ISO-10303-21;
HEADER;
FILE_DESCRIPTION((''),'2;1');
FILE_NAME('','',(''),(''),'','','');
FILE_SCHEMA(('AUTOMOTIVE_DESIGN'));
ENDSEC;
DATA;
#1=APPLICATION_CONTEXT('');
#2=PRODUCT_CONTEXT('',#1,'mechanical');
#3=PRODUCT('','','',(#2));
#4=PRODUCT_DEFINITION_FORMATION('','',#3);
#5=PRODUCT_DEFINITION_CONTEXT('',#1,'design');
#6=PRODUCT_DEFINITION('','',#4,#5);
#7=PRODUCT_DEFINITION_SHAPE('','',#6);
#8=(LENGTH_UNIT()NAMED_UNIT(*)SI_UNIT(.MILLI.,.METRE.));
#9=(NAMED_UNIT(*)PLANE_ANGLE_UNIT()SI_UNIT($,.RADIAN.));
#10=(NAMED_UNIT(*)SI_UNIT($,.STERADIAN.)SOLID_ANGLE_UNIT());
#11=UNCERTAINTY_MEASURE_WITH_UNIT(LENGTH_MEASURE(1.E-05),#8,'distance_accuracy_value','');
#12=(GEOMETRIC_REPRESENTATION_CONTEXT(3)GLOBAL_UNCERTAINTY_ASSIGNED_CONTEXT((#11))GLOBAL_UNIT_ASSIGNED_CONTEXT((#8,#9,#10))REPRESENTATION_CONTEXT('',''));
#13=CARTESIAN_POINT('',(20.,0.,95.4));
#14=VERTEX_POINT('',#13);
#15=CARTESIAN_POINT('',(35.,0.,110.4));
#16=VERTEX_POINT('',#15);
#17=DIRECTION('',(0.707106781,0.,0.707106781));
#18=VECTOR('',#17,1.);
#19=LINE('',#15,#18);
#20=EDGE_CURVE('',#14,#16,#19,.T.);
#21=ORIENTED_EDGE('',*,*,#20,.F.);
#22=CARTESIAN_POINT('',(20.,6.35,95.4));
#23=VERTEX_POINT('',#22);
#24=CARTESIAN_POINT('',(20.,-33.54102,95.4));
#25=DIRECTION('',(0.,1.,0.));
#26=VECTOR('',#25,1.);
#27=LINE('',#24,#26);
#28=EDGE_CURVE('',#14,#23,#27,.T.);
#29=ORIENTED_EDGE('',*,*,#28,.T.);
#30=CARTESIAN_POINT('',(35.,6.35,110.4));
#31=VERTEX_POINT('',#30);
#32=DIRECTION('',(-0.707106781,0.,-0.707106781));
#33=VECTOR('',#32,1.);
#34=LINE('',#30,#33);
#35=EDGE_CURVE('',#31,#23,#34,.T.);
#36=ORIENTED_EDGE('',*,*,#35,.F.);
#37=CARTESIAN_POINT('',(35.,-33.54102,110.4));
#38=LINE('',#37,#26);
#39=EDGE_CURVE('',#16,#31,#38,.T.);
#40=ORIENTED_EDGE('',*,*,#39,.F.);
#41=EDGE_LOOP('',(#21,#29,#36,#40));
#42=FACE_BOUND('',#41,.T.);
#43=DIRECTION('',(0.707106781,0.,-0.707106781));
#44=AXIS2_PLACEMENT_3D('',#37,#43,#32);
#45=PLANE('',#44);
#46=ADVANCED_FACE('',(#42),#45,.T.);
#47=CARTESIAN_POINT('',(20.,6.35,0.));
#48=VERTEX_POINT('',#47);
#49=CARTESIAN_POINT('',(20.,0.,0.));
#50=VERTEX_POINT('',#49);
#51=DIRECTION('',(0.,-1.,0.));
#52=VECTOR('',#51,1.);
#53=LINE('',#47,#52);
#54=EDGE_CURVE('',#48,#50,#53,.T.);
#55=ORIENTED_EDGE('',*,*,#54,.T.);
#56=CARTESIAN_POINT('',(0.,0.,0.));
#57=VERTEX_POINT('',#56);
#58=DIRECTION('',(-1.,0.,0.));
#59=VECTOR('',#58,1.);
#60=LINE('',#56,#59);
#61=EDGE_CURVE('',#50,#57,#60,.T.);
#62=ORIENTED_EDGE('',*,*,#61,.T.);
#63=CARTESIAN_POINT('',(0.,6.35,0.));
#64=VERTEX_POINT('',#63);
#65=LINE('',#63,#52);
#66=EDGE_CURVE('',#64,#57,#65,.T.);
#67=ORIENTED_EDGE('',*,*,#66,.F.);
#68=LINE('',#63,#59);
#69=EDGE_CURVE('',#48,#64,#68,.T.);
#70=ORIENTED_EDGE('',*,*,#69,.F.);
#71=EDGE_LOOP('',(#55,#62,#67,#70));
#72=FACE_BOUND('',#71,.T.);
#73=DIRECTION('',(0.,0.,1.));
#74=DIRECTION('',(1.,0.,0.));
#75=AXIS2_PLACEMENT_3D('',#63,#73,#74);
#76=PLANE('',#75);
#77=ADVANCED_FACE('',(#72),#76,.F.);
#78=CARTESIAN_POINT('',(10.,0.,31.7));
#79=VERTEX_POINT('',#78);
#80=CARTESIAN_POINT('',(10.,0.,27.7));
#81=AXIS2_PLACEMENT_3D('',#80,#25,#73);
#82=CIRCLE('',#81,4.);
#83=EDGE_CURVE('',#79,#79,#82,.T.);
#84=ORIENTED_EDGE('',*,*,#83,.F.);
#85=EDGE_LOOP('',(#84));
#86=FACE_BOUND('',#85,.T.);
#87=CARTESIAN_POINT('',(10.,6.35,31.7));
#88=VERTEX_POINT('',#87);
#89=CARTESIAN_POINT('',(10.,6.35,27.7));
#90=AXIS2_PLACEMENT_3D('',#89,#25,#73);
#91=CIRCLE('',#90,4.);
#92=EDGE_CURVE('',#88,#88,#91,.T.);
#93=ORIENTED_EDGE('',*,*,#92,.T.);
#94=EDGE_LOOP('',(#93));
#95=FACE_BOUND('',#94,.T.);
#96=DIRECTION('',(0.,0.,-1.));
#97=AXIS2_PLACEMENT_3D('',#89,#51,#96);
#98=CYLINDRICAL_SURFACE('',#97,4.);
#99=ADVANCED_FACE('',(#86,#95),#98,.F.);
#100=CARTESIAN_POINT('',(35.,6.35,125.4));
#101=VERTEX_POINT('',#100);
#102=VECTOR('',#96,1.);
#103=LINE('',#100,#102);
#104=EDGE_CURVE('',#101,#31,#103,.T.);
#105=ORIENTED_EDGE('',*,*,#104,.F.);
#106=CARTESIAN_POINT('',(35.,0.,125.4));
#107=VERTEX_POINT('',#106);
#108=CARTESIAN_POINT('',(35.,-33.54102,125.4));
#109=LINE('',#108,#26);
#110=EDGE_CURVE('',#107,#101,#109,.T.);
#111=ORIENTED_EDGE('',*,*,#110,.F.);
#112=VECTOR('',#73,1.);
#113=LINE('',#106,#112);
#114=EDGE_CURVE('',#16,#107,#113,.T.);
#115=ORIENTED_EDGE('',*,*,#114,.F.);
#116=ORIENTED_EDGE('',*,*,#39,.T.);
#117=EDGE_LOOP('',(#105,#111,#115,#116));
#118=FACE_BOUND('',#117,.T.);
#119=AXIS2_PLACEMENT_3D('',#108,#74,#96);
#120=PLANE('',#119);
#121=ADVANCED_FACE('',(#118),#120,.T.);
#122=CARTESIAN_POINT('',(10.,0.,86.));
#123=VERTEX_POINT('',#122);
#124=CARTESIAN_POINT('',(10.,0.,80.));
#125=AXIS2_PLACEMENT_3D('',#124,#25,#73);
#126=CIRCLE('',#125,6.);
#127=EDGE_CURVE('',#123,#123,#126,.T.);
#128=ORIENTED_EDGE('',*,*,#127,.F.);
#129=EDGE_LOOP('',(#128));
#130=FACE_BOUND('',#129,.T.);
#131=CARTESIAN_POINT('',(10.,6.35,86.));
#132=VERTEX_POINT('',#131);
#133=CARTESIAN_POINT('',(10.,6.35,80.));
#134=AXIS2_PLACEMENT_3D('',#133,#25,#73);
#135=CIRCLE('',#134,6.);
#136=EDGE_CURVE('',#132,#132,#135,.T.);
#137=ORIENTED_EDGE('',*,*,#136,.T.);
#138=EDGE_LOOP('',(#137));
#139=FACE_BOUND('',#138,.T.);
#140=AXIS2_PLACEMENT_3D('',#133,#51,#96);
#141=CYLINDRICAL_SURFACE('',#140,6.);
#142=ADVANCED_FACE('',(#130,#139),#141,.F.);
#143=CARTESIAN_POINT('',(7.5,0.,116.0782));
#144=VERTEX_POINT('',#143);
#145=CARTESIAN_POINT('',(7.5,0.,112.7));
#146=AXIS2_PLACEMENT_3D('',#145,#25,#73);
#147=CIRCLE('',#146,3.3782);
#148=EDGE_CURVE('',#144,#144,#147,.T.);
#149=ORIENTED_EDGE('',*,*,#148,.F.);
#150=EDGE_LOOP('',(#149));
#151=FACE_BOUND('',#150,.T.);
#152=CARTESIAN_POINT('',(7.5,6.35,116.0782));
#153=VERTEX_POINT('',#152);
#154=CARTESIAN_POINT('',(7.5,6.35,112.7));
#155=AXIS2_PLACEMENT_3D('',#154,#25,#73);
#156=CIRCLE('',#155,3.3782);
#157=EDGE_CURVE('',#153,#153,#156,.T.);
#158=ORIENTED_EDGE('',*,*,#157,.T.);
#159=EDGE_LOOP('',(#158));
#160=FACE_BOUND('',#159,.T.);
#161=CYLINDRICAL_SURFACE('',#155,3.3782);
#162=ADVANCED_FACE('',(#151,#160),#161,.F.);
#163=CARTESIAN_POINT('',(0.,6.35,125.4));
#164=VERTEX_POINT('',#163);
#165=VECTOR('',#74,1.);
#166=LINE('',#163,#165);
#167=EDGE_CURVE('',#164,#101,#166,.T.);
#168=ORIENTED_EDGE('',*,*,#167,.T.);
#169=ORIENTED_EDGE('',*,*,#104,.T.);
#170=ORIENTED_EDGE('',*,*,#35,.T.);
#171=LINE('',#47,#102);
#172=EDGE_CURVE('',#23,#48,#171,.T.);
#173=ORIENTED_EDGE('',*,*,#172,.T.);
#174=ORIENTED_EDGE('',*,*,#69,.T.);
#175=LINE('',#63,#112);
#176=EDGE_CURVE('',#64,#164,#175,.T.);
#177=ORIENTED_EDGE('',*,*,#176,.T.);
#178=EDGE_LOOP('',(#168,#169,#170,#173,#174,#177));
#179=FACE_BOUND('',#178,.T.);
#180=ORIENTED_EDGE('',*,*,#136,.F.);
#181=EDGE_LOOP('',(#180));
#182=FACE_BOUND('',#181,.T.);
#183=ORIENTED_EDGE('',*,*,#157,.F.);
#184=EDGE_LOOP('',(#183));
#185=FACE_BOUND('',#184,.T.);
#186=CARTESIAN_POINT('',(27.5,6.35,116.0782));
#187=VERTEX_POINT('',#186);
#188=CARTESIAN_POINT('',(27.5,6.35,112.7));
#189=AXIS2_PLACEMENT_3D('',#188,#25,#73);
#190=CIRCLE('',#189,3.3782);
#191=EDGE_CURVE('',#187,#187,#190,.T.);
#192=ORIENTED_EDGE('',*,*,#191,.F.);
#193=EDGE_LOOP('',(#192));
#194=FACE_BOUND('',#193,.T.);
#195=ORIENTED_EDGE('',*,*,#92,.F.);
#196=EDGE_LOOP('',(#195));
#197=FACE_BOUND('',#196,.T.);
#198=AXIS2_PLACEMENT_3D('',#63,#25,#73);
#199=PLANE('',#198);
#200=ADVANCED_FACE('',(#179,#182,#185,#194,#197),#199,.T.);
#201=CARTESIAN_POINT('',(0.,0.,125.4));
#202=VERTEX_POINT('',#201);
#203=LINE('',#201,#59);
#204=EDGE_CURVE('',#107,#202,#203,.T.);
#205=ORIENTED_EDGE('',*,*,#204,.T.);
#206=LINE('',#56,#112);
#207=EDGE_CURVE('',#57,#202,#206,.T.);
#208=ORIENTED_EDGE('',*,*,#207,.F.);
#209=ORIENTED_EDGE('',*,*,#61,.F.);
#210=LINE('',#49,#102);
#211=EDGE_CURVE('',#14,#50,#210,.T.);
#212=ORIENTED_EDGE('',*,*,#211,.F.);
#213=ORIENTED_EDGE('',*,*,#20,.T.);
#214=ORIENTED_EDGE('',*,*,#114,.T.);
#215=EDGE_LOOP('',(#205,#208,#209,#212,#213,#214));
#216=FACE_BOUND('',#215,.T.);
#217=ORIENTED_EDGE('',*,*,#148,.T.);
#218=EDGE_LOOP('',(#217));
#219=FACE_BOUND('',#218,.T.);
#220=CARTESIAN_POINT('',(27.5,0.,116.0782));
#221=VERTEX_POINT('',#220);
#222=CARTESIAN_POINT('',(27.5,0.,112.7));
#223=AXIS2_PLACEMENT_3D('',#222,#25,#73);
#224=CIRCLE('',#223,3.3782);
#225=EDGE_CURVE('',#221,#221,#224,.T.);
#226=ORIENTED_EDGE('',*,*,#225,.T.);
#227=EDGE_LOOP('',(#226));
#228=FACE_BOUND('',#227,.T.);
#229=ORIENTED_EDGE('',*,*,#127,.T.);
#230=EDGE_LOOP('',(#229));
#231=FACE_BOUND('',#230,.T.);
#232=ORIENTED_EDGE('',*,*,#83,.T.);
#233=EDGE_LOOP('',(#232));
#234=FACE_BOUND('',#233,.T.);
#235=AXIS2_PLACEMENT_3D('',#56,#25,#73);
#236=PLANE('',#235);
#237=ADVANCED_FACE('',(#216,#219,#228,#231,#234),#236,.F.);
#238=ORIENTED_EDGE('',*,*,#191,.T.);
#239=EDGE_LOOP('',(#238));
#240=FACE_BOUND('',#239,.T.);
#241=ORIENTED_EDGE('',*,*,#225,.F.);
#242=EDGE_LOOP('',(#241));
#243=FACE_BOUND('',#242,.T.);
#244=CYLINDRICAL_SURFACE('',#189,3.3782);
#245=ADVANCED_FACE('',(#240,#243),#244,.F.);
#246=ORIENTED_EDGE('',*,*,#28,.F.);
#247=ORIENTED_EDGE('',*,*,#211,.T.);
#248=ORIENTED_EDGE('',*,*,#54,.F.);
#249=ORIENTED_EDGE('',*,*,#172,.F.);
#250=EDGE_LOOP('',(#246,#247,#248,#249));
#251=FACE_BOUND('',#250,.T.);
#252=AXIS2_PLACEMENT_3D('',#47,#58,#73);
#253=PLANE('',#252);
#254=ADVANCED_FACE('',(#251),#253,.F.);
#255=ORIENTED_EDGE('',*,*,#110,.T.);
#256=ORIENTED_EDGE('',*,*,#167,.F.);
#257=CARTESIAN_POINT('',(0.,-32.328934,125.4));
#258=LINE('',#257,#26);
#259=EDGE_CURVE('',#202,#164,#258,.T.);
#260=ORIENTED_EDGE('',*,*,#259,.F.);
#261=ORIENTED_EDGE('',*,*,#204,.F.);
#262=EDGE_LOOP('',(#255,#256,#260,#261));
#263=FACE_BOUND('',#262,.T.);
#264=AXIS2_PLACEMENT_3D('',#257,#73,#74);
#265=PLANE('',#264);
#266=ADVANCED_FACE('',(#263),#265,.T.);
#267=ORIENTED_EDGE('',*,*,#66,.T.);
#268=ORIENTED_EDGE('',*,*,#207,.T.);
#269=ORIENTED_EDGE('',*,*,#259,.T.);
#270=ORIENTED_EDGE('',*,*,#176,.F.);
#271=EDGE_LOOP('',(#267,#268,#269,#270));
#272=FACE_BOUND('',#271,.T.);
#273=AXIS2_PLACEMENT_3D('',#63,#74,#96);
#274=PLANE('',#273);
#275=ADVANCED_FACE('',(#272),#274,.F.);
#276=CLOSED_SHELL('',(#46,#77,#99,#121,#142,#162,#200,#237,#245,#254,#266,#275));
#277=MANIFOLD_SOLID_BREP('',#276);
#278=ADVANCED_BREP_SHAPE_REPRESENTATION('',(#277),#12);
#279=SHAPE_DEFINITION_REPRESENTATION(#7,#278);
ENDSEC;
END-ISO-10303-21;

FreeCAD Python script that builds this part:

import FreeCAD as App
import Part
import Sketcher
from FreeCAD import Vector
Q = App.Units.Quantity

doc = App.newDocument("Part")
body = doc.addObject("PartDesign::Body", "Body")

# Sketch on XZ plane
sketch1 = body.newObject("Sketcher::SketchObject", "Sketch")
sketch1.AttachmentSupport = (doc.getObject("XZ_Plane"), [""])
sketch1.MapMode = "FlatFace"
sketch1.addGeometry(Part.LineSegment(Vector(0, 0, 0), Vector(0, 100, 0)), False)
sketch1.addGeometry(Part.LineSegment(Vector(0, 100, 0), Vector(20, 100, 0)), False)
sketch1.addGeometry(Part.LineSegment(Vector(20, 100, 0), Vector(20, 0, 0)), False)
sketch1.addGeometry(Part.LineSegment(Vector(20, 0, 0), Vector(0, 0, 0)), False)
sketch1.addGeometry(Part.Circle(Vector(10, 80, 0), Vector(0, 0, 1), 6), False)
sketch1.addGeometry(Part.Circle(Vector(10, 27.7, 0), Vector(0, 0, 1), 4), False)
sketch1.addConstraint(Sketcher.Constraint("Coincident", 0, 2, 1, 1))
sketch1.addConstraint(Sketcher.Constraint("Coincident", 1, 2, 2, 1))
sketch1.addConstraint(Sketcher.Constraint("Coincident", 2, 2, 3, 1))
sketch1.addConstraint(Sketcher.Constraint("Coincident", 3, 2, 0, 1))
sketch1.addConstraint(Sketcher.Constraint("Vertical", 0))
sketch1.addConstraint(Sketcher.Constraint("Horizontal", 1))
sketch1.addConstraint(Sketcher.Constraint("Vertical", 2))
sketch1.addConstraint(Sketcher.Constraint("Horizontal", 3))
sketch1.addConstraint(Sketcher.Constraint("Coincident", 3, 2, -1, 1))
sketch1.addConstraint(Sketcher.Constraint("Vertical", 4, 3, 5, 3))
sketch1.addConstraint(Sketcher.Constraint("Diameter", 4, Q("12 mm")))
sketch1.addConstraint(Sketcher.Constraint("Diameter", 5, Q("8 mm")))
sketch1.addConstraint(Sketcher.Constraint("DistanceX", 1, 1, 1, 2, Q("20 mm")))
sketch1.addConstraint(Sketcher.Constraint("DistanceY", 0, 1, 0, 2, Q("100 mm")))
sketch1.addConstraint(Sketcher.Constraint("DistanceX", -1, 1, 4, 3, Q("10 mm")))
sketch1.addConstraint(Sketcher.Constraint("DistanceY", -1, 1, 4, 3, Q("80 mm")))
sketch1.addConstraint(Sketcher.Constraint("DistanceY", -1, 1, 5, 3, Q("27.7 mm")))
pad1 = body.newObject("PartDesign::Pad", "Pad")
pad1.Profile = sketch1
pad1.Length = 6.35
pad1.Reversed = True

# Sketch on XZ plane
sketch2 = body.newObject("Sketcher::SketchObject", "Sketch001")
sketch2.AttachmentSupport = (doc.getObject("XZ_Plane"), [""])
sketch2.MapMode = "FlatFace"
sketch2.AttachmentOffset = App.Placement(Vector(0, 0, -6.35), App.Rotation())
sketch2.addGeometry(Part.LineSegment(Vector(0, 100, 0), Vector(0, 125, 0)), False)
sketch2.addGeometry(Part.LineSegment(Vector(0, 125, 0), Vector(20, 125, 0)), False)
sketch2.addGeometry(Part.LineSegment(Vector(20, 125, 0), Vector(20, 100, 0)), False)
sketch2.addGeometry(Part.LineSegment(Vector(20, 100, 0), Vector(0, 100, 0)), False)
sketch2.addConstraint(Sketcher.Constraint("Coincident", 0, 2, 1, 1))
sketch2.addConstraint(Sketcher.Constraint("Coincident", 1, 2, 2, 1))
sketch2.addConstraint(Sketcher.Constraint("Coincident", 2, 2, 3, 1))
sketch2.addConstraint(Sketcher.Constraint("Coincident", 3, 2, 0, 1))
sketch2.addConstraint(Sketcher.Constraint("Vertical", 0))
sketch2.addConstraint(Sketcher.Constraint("Horizontal", 1))
sketch2.addConstraint(Sketcher.Constraint("Vertical", 2))
sketch2.addConstraint(Sketcher.Constraint("Horizontal", 3))
sketch2.addConstraint(Sketcher.Constraint("PointOnObject", 0, 2, -2))
sketch2.addConstraint(Sketcher.Constraint("DistanceX", 1, 1, 1, 2, Q("20 mm")))
sketch2.addConstraint(Sketcher.Constraint("DistanceY", 0, 1, 0, 2, Q("25.4 mm")))
sketch2.addConstraint(Sketcher.Constraint("DistanceY", -1, 1, 2, 2, Q("100 mm")))
pad2 = body.newObject("PartDesign::Pad", "Pad001")
pad2.Profile = sketch2
pad2.Length = 6.35

# Sketch on XZ plane
sketch3 = body.newObject("Sketcher::SketchObject", "Sketch002")
sketch3.AttachmentSupport = (doc.getObject("XZ_Plane"), [""])
sketch3.MapMode = "FlatFace"
sketch3.AttachmentOffset = App.Placement(Vector(0, 0, -6.35), App.Rotation())
sketch3.addGeometry(Part.LineSegment(Vector(20, 125, 0), Vector(35, 125, 0)), False)
sketch3.addGeometry(Part.LineSegment(Vector(35, 125, 0), Vector(35, 110, 0)), False)
sketch3.addGeometry(Part.LineSegment(Vector(35, 110, 0), Vector(20, 95, 0)), False)
sketch3.addGeometry(Part.LineSegment(Vector(20, 95, 0), Vector(20, 125, 0)), False)
sketch3.addConstraint(Sketcher.Constraint("Coincident", 0, 2, 1, 1))
sketch3.addConstraint(Sketcher.Constraint("Coincident", 1, 2, 2, 1))
sketch3.addConstraint(Sketcher.Constraint("Coincident", 2, 2, 3, 1))
sketch3.addConstraint(Sketcher.Constraint("Coincident", 3, 2, 0, 1))
sketch3.addConstraint(Sketcher.Constraint("Horizontal", 0))
sketch3.addConstraint(Sketcher.Constraint("Vertical", 1))
sketch3.addConstraint(Sketcher.Constraint("Vertical", 3))
sketch3.addConstraint(Sketcher.Constraint("Equal", 0, 1))
sketch3.addConstraint(Sketcher.Constraint("DistanceX", 0, 1, 0, 2, Q("15 mm")))
sketch3.addConstraint(Sketcher.Constraint("DistanceY", 3, 1, 3, 2, Q("30 mm")))
sketch3.addConstraint(Sketcher.Constraint("DistanceX", -1, 1, 0, 2, Q("35 mm")))
sketch3.addConstraint(Sketcher.Constraint("DistanceY", -1, 1, 0, 2, Q("125.4 mm")))
pad3 = body.newObject("PartDesign::Pad", "Pad002")
pad3.Profile = sketch3
pad3.Length = 6.35

# Sketch on XZ plane
sketch4 = body.newObject("Sketcher::SketchObject", "Sketch003")
sketch4.AttachmentSupport = (doc.getObject("XZ_Plane"), [""])
sketch4.MapMode = "FlatFace"
sketch4.AttachmentOffset = App.Placement(Vector(0, 0, -6.35), App.Rotation())
sketch4.addGeometry(Part.Circle(Vector(7.5, 112.7, 0), Vector(0, 0, 1), 3.4), False)
sketch4.addGeometry(Part.Circle(Vector(27.5, 112.7, 0), Vector(0, 0, 1), 3.4), False)
sketch4.addConstraint(Sketcher.Constraint("Equal", 0, 1))
sketch4.addConstraint(Sketcher.Constraint("Horizontal", 0, 3, 1, 3))
sketch4.addConstraint(Sketcher.Constraint("DistanceX", 0, 3, 1, 3, Q("20 mm")))
sketch4.addConstraint(Sketcher.Constraint("Diameter", 0, Q("6.7564 mm")))
sketch4.addConstraint(Sketcher.Constraint("DistanceX", -1, 1, 0, 3, Q("7.5 mm")))
sketch4.addConstraint(Sketcher.Constraint("DistanceY", -1, 1, 0, 3, Q("112.7 mm")))
doc.recompute()
hole = body.newObject("PartDesign::Hole", "Hole")
hole.Profile = sketch4
hole.ThreadType = "None"
hole.Diameter = 6.7564
hole.DepthType = "ThroughAll"
hole.Reversed = True

doc.recompute()
